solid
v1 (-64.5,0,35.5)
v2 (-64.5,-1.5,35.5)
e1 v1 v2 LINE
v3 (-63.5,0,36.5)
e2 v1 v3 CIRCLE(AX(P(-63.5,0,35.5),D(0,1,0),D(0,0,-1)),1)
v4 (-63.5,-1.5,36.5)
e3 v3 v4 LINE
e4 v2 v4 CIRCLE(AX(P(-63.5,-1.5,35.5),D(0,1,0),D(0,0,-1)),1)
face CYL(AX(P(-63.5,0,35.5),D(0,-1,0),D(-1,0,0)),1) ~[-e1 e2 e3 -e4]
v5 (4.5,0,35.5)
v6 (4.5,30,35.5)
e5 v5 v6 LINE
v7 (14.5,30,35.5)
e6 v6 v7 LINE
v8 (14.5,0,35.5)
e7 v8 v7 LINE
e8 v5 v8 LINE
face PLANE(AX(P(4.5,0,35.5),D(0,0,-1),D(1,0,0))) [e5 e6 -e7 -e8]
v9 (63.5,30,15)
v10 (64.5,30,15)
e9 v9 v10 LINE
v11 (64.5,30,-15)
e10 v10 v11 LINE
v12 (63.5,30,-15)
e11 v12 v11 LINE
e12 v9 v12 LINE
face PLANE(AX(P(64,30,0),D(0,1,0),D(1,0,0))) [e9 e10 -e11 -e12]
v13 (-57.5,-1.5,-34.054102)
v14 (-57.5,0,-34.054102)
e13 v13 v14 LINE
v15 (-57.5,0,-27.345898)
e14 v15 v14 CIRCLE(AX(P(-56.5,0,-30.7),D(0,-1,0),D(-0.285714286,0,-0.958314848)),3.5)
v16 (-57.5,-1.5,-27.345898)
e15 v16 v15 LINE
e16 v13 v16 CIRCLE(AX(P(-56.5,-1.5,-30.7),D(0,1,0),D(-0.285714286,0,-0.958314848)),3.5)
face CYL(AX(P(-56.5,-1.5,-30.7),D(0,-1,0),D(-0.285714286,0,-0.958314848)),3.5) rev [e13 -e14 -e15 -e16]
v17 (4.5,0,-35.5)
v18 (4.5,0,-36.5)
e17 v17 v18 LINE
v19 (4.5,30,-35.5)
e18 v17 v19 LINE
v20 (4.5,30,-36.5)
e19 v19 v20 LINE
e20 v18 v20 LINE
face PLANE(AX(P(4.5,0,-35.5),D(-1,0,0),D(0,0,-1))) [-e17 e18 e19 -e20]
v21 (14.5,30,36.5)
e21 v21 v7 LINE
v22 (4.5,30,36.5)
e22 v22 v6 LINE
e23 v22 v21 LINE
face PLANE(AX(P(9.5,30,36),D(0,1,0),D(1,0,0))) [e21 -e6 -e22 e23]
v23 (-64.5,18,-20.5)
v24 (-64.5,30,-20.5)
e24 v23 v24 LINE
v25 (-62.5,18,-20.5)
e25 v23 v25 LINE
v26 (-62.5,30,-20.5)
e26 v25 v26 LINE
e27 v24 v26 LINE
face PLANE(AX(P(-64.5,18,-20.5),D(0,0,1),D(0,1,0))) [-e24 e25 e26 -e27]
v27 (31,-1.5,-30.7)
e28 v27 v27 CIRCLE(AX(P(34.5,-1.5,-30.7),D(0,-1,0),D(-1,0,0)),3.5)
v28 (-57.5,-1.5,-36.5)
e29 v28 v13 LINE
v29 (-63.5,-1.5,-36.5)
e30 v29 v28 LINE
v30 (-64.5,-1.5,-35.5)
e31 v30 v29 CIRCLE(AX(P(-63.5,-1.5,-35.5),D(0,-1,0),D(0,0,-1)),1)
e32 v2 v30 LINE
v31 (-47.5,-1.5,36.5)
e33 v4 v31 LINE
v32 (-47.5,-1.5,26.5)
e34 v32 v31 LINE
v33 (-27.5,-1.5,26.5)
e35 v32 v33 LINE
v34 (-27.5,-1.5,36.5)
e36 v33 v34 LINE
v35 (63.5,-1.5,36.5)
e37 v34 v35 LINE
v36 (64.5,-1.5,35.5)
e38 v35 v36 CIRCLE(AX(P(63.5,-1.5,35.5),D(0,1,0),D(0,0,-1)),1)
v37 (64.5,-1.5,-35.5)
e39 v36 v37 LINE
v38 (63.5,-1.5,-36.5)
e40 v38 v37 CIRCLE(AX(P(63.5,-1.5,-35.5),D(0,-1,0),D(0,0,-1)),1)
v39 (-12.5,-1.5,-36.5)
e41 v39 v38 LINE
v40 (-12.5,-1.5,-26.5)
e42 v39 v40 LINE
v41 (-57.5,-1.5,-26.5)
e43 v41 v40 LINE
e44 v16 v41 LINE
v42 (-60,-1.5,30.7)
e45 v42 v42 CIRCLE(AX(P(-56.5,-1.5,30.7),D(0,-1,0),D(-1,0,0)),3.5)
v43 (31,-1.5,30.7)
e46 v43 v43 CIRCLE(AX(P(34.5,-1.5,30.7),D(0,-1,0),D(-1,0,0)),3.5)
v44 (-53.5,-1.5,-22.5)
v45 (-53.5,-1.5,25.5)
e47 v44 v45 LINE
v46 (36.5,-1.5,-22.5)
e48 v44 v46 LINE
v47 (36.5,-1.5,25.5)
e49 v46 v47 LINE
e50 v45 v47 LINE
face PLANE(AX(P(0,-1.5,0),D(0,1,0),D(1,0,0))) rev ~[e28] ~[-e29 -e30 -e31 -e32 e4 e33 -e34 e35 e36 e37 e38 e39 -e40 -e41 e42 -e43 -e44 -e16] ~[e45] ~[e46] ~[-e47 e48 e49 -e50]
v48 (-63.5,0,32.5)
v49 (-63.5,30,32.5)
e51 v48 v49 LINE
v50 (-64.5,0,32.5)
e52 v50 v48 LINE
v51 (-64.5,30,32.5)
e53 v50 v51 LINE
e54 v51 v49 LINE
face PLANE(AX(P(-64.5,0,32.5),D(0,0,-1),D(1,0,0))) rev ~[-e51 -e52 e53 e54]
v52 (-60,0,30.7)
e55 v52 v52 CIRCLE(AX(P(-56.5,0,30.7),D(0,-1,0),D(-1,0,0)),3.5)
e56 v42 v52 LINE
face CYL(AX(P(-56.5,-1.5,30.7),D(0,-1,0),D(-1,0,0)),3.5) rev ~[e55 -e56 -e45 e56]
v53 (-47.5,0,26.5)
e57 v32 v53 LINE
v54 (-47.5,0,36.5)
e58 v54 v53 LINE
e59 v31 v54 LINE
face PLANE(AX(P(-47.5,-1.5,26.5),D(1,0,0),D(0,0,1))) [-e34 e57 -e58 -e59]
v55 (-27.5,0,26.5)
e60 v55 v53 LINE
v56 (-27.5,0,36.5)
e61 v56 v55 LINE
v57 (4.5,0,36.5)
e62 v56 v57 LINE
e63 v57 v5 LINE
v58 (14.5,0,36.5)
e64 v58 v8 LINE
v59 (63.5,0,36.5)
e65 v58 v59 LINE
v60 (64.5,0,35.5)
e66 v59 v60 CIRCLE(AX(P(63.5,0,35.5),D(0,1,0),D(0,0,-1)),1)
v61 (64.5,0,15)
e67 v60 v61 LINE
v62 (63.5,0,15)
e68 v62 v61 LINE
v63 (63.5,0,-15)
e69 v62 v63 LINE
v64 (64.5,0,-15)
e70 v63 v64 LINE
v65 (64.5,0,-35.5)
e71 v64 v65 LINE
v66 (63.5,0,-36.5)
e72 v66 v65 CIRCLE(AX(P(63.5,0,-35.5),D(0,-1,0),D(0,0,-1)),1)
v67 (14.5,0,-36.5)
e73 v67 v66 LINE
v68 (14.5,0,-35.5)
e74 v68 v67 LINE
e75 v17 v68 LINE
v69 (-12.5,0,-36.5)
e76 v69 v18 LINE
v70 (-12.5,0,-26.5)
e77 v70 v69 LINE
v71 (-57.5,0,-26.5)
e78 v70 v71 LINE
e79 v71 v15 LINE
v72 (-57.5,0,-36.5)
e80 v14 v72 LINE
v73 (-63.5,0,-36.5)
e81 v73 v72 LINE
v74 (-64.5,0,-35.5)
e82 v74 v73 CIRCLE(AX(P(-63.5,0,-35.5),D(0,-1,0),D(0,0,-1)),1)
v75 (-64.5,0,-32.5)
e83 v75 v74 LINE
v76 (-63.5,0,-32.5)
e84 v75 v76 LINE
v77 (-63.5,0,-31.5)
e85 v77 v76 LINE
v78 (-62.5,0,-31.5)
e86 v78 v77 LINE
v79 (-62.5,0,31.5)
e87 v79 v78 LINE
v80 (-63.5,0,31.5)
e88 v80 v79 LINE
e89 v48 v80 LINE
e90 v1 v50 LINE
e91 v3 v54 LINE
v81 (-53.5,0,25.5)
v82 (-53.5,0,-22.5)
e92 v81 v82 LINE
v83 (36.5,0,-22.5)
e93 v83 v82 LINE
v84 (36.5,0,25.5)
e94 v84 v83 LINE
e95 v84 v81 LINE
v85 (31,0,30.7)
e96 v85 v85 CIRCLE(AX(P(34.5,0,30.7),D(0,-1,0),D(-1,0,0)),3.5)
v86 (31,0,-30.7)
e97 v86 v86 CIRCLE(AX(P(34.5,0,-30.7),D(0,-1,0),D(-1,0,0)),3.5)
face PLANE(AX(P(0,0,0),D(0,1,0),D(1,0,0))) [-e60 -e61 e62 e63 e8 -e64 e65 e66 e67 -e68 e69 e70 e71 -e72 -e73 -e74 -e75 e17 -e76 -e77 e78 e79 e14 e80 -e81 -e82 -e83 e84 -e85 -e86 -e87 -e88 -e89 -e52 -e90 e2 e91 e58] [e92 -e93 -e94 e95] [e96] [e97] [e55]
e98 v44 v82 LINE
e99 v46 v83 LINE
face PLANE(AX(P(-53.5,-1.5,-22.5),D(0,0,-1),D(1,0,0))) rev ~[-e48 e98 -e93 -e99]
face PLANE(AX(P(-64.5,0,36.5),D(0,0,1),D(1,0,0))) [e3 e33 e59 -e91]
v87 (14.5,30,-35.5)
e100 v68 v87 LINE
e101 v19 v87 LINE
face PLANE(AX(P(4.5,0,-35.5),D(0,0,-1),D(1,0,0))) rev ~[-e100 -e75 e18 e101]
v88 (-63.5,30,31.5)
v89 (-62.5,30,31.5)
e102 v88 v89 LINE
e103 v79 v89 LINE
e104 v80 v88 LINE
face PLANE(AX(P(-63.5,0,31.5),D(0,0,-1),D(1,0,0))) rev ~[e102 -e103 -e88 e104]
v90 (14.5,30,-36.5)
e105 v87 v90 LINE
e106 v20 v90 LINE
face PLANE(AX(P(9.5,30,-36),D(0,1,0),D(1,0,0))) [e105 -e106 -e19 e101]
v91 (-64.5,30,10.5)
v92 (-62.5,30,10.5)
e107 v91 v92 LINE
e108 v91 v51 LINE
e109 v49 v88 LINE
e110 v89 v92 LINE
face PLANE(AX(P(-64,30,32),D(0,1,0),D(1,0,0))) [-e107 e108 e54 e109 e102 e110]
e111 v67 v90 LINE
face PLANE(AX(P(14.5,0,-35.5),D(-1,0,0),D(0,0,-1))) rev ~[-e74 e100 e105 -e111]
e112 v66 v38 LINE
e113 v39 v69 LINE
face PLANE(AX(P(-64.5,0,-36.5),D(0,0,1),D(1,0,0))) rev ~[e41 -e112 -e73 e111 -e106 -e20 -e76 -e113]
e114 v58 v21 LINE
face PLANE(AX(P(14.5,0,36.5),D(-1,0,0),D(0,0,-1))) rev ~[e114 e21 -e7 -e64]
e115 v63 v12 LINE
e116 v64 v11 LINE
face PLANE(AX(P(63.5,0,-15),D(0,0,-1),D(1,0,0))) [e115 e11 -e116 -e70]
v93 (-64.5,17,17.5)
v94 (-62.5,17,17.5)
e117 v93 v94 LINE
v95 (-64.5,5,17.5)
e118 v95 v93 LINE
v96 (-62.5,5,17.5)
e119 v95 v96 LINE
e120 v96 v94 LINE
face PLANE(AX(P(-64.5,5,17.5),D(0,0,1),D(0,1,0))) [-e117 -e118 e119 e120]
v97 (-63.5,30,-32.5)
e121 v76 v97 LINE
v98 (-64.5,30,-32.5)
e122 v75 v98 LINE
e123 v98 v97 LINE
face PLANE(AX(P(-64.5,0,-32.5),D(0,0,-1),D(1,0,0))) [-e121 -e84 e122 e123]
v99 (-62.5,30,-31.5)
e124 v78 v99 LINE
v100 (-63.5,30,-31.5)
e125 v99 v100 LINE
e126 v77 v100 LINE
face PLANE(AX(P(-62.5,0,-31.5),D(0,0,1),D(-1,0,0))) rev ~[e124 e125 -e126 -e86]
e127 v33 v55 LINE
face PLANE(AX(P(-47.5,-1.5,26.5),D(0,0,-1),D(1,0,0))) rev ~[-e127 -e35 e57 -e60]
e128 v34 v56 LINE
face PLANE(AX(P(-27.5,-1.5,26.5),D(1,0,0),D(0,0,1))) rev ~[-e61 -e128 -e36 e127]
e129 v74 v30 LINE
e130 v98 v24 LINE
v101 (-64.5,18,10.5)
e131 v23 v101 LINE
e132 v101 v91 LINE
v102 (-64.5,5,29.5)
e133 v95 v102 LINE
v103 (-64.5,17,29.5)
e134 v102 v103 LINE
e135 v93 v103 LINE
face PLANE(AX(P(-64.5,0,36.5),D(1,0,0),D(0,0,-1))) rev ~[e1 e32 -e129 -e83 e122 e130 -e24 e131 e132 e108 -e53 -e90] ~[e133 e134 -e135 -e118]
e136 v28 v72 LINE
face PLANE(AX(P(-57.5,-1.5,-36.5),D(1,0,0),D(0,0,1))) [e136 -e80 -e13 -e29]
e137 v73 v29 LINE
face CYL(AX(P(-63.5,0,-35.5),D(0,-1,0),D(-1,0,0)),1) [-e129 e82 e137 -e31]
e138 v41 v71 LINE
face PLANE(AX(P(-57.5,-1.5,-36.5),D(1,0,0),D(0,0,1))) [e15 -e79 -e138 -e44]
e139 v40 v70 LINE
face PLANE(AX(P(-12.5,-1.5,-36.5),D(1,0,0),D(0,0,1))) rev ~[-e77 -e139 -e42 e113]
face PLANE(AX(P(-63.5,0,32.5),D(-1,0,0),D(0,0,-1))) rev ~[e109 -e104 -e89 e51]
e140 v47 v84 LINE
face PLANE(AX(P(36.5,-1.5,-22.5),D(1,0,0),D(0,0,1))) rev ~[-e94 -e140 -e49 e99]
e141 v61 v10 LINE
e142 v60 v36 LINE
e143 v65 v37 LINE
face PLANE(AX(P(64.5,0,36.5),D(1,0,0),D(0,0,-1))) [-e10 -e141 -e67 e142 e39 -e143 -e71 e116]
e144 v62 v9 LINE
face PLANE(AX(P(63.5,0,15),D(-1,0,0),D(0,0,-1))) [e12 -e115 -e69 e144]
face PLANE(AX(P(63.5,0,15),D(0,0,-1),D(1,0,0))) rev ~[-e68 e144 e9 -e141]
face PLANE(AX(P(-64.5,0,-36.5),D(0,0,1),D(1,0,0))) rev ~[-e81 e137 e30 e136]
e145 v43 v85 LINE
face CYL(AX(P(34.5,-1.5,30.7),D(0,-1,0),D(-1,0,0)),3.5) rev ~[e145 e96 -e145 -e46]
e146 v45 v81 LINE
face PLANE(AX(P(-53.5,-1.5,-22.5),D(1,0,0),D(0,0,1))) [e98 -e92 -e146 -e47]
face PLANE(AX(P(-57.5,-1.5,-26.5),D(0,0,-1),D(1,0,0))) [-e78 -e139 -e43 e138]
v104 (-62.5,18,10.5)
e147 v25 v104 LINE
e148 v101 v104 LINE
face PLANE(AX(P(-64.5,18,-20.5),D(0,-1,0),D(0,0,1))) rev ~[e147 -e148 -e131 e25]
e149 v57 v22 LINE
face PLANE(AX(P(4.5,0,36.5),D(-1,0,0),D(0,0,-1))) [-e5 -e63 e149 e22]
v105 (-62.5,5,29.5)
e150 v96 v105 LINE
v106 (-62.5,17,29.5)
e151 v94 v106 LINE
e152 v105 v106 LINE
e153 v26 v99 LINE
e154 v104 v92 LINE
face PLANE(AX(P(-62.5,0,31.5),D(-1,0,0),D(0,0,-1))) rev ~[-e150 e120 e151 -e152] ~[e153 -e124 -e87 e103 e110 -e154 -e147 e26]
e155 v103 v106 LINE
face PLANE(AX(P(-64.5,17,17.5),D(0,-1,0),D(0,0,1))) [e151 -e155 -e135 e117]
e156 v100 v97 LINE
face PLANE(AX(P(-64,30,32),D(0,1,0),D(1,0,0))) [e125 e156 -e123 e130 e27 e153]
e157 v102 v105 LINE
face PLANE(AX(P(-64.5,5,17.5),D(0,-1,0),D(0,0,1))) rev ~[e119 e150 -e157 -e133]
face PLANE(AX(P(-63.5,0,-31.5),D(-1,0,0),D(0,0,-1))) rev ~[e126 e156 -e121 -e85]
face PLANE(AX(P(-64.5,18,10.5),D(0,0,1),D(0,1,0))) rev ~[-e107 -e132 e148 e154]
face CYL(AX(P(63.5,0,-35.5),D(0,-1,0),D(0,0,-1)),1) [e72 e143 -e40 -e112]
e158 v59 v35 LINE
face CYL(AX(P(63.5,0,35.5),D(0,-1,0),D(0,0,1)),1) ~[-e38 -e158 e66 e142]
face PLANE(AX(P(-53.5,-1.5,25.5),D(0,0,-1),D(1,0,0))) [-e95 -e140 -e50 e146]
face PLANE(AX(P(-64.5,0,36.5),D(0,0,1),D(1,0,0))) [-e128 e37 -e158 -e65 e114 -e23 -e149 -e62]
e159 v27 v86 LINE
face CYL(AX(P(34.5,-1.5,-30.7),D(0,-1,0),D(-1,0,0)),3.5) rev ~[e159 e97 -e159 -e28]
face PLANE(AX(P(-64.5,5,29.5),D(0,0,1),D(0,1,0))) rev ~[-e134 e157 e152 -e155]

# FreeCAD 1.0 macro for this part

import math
import FreeCAD as App
import Part
import Sketcher

V = App.Vector


def edges_at(feature, points):
    """Names of the edges that pass closest to the given points."""
    edges = feature.Shape.Edges
    near = lambda p: min(range(len(edges)), key=lambda i: edges[i].distToShape(Part.Vertex(*p))[0])
    return sorted({f"Edge{near(p) + 1}" for p in points})


def add_polygon(sketch, points):
    """Adds a closed chain of lines whose ends are joined by coincident constraints."""
    first, n = sketch.GeometryCount, len(points)
    for a, b in zip(points, points[1:] + points[:1]):
        sketch.addGeometry(Part.LineSegment(App.Vector(*a, 0), App.Vector(*b, 0)), False)
    for i in range(n):
        sketch.addConstraint(Sketcher.Constraint("Coincident", first + i, 2, first + (i + 1) % n, 1))

doc = App.newDocument("Part")
body = doc.addObject("PartDesign::Body", "Body")

sketch1 = body.newObject("Sketcher::SketchObject", "Sketch")
sketch1.AttachmentSupport = (doc.getObject("XZ_Plane"), [""])
sketch1.MapMode = "FlatFace"
add_polygon(sketch1, [(-64.5, 32.5), (-63.5, 32.5), (-63.5, 31.5), (-62.5, 31.5), (-62.5, -31.5), (-63.5, -31.5), (-63.5, -32.5), (-64.5, -32.5)])
sketch1.addConstraint([
    Sketcher.Constraint("Horizontal", 0),
    Sketcher.Constraint("Vertical", 1),
    Sketcher.Constraint("Horizontal", 2),
    Sketcher.Constraint("Vertical", 3),
    Sketcher.Constraint("Horizontal", 4),
    Sketcher.Constraint("Vertical", 5),
    Sketcher.Constraint("Horizontal", 6),
    Sketcher.Constraint("Vertical", 7),
    Sketcher.Constraint("Symmetric", 1, 2, 4, 2, -1),
    Sketcher.Constraint("Equal", 0, 2),
    Sketcher.Constraint("Equal", 6, 1),
    Sketcher.Constraint("Equal", 1, 5),
    Sketcher.Constraint("DistanceX", 0, 1, 0, 2, 1.0),
    Sketcher.Constraint("DistanceY", 3, 2, 3, 1, 63.0),
    Sketcher.Constraint("DistanceX", 0, 2, -1, 1, 63.5),
])
pad1 = body.newObject("PartDesign::Pad", "Pad")
pad1.Profile = sketch1
pad1.Length = 30
pad1.Reversed = True

sketch2 = body.newObject("Sketcher::SketchObject", "Sketch001")
sketch2.AttachmentSupport = (doc.getObject("XZ_Plane"), [""])
sketch2.MapMode = "FlatFace"
add_polygon(sketch2, [(-64, -36), (-64, 36), (64, 36), (64, -36)])
sketch2.addConstraint([
    Sketcher.Constraint("Vertical", 0),
    Sketcher.Constraint("Horizontal", 1),
    Sketcher.Constraint("Vertical", 2),
    Sketcher.Constraint("Horizontal", 3),
    Sketcher.Constraint("Symmetric", 0, 2, 2, 2, -1, 1),
    Sketcher.Constraint("DistanceX", 1, 1, 1, 2, 129.0),
    Sketcher.Constraint("DistanceY", 0, 1, 0, 2, 73.0),
])
pad2 = body.newObject("PartDesign::Pad", "Pad001")
pad2.Profile = sketch2
pad2.Length = 1.5

sketch3 = body.newObject("Sketcher::SketchObject", "Sketch002")
sketch3.AttachmentSupport = (doc.getObject("XZ_Plane"), [""])
sketch3.MapMode = "FlatFace"
add_polygon(sketch3, [(63.5, -15), (63.5, 15), (64.5, 15), (64.5, -15)])
add_polygon(sketch3, [(4.5, 35.5), (4.5, 36.5), (14.5, 36.5), (14.5, 35.5)])
add_polygon(sketch3, [(4.5, -36.5), (4.5, -35.5), (14.5, -35.5), (14.5, -36.5)])
sketch3.addConstraint([
    Sketcher.Constraint("Vertical", 0),
    Sketcher.Constraint("Horizontal", 1),
    Sketcher.Constraint("Vertical", 2),
    Sketcher.Constraint("Horizontal", 3),
    Sketcher.Constraint("Vertical", 4),
    Sketcher.Constraint("Horizontal", 5),
    Sketcher.Constraint("Vertical", 6),
    Sketcher.Constraint("Horizontal", 7),
    Sketcher.Constraint("Vertical", 8),
    Sketcher.Constraint("Horizontal", 9),
    Sketcher.Constraint("Vertical", 10),
    Sketcher.Constraint("Horizontal", 11),
    Sketcher.Constraint("Symmetric", 7, 2, 8, 2, -1),
    Sketcher.Constraint("Symmetric", 5, 2, 10, 2, -1),
    Sketcher.Constraint("Equal", 3, 4),
    Sketcher.Constraint("DistanceX", 1, 1, 1, 2, 1.0),
    Sketcher.Constraint("DistanceX", 5, 1, 5, 2, 10.0),
    Sketcher.Constraint("DistanceY", 0, 1, 0, 2, 30.0),
    Sketcher.Constraint("DistanceY", -1, 1, 0, 2, 15.0),
    Sketcher.Constraint("DistanceX", 4, 2, 0, 2, 59.0),
    Sketcher.Constraint("DistanceY", 8, 2, 7, 2, 71.0),
    Sketcher.Constraint("DistanceX", -1, 1, 0, 2, 63.5),
])
pad3 = body.newObject("PartDesign::Pad", "Pad002")
pad3.Profile = sketch3
pad3.Length = 30
pad3.Reversed = True

sketch4 = body.newObject("Sketcher::SketchObject", "Sketch003")
sketch4.AttachmentSupport = (doc.getObject("YZ_Plane"), [""])
sketch4.MapMode = "FlatFace"
sketch4.AttachmentOffset = App.Placement(V(0, 0, -64.5), App.Rotation())
add_polygon(sketch4, [(30, -20), (18, -20), (18, 10), (30, 10)])
add_polygon(sketch4, [(17, 18), (5, 18), (5, 30), (17, 30)])
sketch4.addConstraint([
    Sketcher.Constraint("Horizontal", 0),
    Sketcher.Constraint("Vertical", 1),
    Sketcher.Constraint("Horizontal", 2),
    Sketcher.Constraint("Vertical", 3),
    Sketcher.Constraint("Horizontal", 4),
    Sketcher.Constraint("Vertical", 5),
    Sketcher.Constraint("Horizontal", 6),
    Sketcher.Constraint("Vertical", 7),
    Sketcher.Constraint("Equal", 2, 4),
    Sketcher.Constraint("Equal", 6, 5),
    Sketcher.Constraint("DistanceX", 0, 2, 0, 1, 12.0),
    Sketcher.Constraint("DistanceY", 1, 1, 1, 2, 31.0),
    Sketcher.Constraint("DistanceX", -1, 1, 0, 2, 18.0),
    Sketcher.Constraint("DistanceX", -1, 1, 4, 2, 5.0),
    Sketcher.Constraint("DistanceY", 1, 2, 4, 2, 7.0),
    Sketcher.Constraint("DistanceY", 0, 2, -1, 1, 20.5),
])
pocket1 = body.newObject("PartDesign::Pocket", "Pocket")
pocket1.Profile = sketch4
pocket1.Length = 2
pocket1.Reversed = True

sketch5 = body.newObject("Sketcher::SketchObject", "Sketch004")
sketch5.AttachmentSupport = (doc.getObject("XZ_Plane"), [""])
sketch5.MapMode = "FlatFace"
sketch5.AttachmentOffset = App.Placement(V(0, 0, 1.5), App.Rotation())
add_polygon(sketch5, [(-54, 26), (-54, -22), (36, -22), (36, 26)])
add_polygon(sketch5, [(-48, 36), (-48, 26), (-28, 26), (-28, 36)])
add_polygon(sketch5, [(-58, -26), (-58, -36), (-12, -36), (-12, -26)])
sketch5.addConstraint([
    Sketcher.Constraint("Vertical", 0),
    Sketcher.Constraint("Horizontal", 1),
    Sketcher.Constraint("Vertical", 2),
    Sketcher.Constraint("Horizontal", 3),
    Sketcher.Constraint("Vertical", 4),
    Sketcher.Constraint("Horizontal", 5),
    Sketcher.Constraint("Vertical", 6),
    Sketcher.Constraint("Horizontal", 7),
    Sketcher.Constraint("Vertical", 8),
    Sketcher.Constraint("Horizontal", 9),
    Sketcher.Constraint("Vertical", 10),
    Sketcher.Constraint("Horizontal", 11),
    Sketcher.Constraint("Equal", 6, 8),
    Sketcher.Constraint("DistanceX", 1, 1, 1, 2, 90.0),
    Sketcher.Constraint("DistanceX", 5, 1, 5, 2, 20.0),
    Sketcher.Constraint("DistanceX", 9, 1, 9, 2, 45.0),
    Sketcher.Constraint("DistanceY", 0, 2, 0, 1, 48.0),
    Sketcher.Constraint("DistanceY", 4, 2, 4, 1, 10.0),
    Sketcher.Constraint("DistanceX", 3, 2, 4, 2, 6.0),
    Sketcher.Constraint("DistanceY", 3, 2, 4, 2, 1.0),
    Sketcher.Constraint("DistanceX", 8, 2, 0, 2, 4.0),
    Sketcher.Constraint("DistanceY", 8, 2, 0, 2, 14.0),
    Sketcher.Constraint("DistanceX", 0, 2, -1, 1, 53.5),
    Sketcher.Constraint("DistanceY", 0, 2, -1, 1, 22.5),
])
pocket2 = body.newObject("PartDesign::Pocket", "Pocket001")
pocket2.Profile = sketch5
pocket2.Length = 2
doc.recompute()

fillet = body.newObject("PartDesign::Fillet", "Fillet")
fillet.Base = (pocket2, edges_at(pocket2, [(-64.5, -0.75, -36.5)]))
fillet.Radius = 1
doc.recompute()

fillet2 = body.newObject("PartDesign::Fillet", "Fillet001")
fillet2.Base = (fillet, edges_at(fillet, [(-64.5, -0.75, 36.5)]))
fillet2.Radius = 1
doc.recompute()

fillet3 = body.newObject("PartDesign::Fillet", "Fillet002")
fillet3.Base = (fillet2, edges_at(fillet2, [(64.5, -0.75, -36.5), (64.5, -0.75, 36.5)]))
fillet3.Radius = 1

sketch6 = body.newObject("Sketcher::SketchObject", "Sketch005")
sketch6.AttachmentSupport = (doc.getObject("XZ_Plane"), [""])
sketch6.MapMode = "FlatFace"
sketch6.AttachmentOffset = App.Placement(V(0, 0, 1.5), App.Rotation())
sketch6.addGeometry([
    Part.Circle(V(34.5, -30.7, 0), V(0, 0, 1), 3.5),
    Part.Circle(V(34.5, 30.7, 0), V(0, 0, 1), 3.5),
    Part.Circle(V(-56.5, 30.7, 0), V(0, 0, 1), 3.5),
    Part.LineSegment(V(-57.5, -34.1, 0), V(-57.5, -27.3, 0)),
    Part.ArcOfCircle(Part.Circle(V(-56.5, -30.7, 0), V(0, 0, 1), 3.5), math.radians(107), math.radians(253)),
], False)
sketch6.addConstraint([
    Sketcher.Constraint("Coincident", 3, 1, 4, 2),
    Sketcher.Constraint("Coincident", 4, 1, 3, 2),
    Sketcher.Constraint("Vertical", 3),
    Sketcher.Constraint("Equal", 0, 1),
    Sketcher.Constraint("Equal", 1, 2),
    Sketcher.Constraint("Equal", 2, 4),
    Sketcher.Constraint("Symmetric", 0, 3, 1, 3, -1),
    Sketcher.Constraint("Symmetric", 2, 3, 4, 3, -1),
    Sketcher.Constraint("Horizontal", 1, 3, 2, 3),
    Sketcher.Constraint("Diameter", 0, 7.0),
    Sketcher.Constraint("DistanceX", 2, 3, 1, 3, 91.0),
    Sketcher.Constraint("DistanceX", 3, 1, 4, 3, 1.0),
    Sketcher.Constraint("DistanceX", -1, 1, 0, 3, 34.5),
    Sketcher.Constraint("DistanceY", 0, 3, -1, 1, 30.7),
])
pocket3 = body.newObject("PartDesign::Pocket", "Pocket002")
pocket3.Profile = sketch6
pocket3.Length = 2

doc.recompute()
